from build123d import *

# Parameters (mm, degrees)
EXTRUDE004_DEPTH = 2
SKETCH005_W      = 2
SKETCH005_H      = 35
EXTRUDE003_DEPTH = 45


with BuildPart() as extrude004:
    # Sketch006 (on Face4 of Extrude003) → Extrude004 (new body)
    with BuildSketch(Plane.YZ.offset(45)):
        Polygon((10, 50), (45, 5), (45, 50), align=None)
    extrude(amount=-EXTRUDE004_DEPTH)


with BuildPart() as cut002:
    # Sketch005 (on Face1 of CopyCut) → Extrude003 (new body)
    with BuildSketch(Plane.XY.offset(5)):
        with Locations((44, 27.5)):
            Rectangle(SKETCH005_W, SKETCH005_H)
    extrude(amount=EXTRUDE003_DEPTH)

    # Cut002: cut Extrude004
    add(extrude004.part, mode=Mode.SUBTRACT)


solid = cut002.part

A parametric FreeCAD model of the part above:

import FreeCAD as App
import Part
import Sketcher
from FreeCAD import Vector
Q = App.Units.Quantity

doc = App.newDocument("Part")
params = doc.addObject("Spreadsheet::Sheet", "Params")
for row, (alias, value) in enumerate([
    ("sketch1_width", "35 mm"),
    ("sketch1_height", "45 mm"),
    ("pad1_length", "2 mm"),
    ("sketch2_width", "2 mm"),
    ("sketch2_height", "35 mm"),
    ("pad2_length", "45 mm"),
], start=1):
    params.set(f"A{row}", alias)
    params.set(f"B{row}", "=" + value)
    params.setAlias(f"B{row}", alias)

body = doc.addObject("PartDesign::Body", "Body")

# Sketch on YZ plane
sketch1 = body.newObject("Sketcher::SketchObject", "Sketch")
sketch1.AttachmentSupport = (doc.getObject("YZ_Plane"), [""])
sketch1.MapMode = "FlatFace"
sketch1.AttachmentOffset = App.Placement(Vector(0, 0, 45), App.Rotation())
sketch1.addGeometry([
    Part.LineSegment(Vector(10, 50, 0), Vector(45, 5, 0)),
    Part.LineSegment(Vector(45, 5, 0), Vector(45, 50, 0)),
    Part.LineSegment(Vector(45, 50, 0), Vector(10, 50, 0)),
], False)
sketch1.addConstraint([
    Sketcher.Constraint("Coincident", 0, 2, 1, 1),
    Sketcher.Constraint("Coincident", 1, 2, 2, 1),
    Sketcher.Constraint("Coincident", 2, 2, 0, 1),
    Sketcher.Constraint("Vertical", 1),
    Sketcher.Constraint("Horizontal", 2),
    Sketcher.Constraint("DistanceX", 2, 2, 2, 1, Q("35 mm")),
    Sketcher.Constraint("DistanceY", 1, 1, 1, 2, Q("45 mm")),
    Sketcher.Constraint("DistanceX", -1, 1, 0, 2, Q("45 mm")),
    Sketcher.Constraint("DistanceY", -1, 1, 0, 2, Q("5 mm")),
])
sketch1.setExpression("Constraints[5]", "Params.sketch1_width")
sketch1.setExpression("Constraints[6]", "Params.sketch1_height")
pad1 = body.newObject("PartDesign::Pad", "Pad")
pad1.Profile = sketch1
pad1.setExpression("Length", "Params.pad1_length")
pad1.Reversed = True
body2 = doc.addObject("PartDesign::Body", "Body001")

# Sketch on XY plane
sketch2 = body2.newObject("Sketcher::SketchObject", "Sketch001")
sketch2.AttachmentSupport = (doc.getObject("XY_Plane001"), [""])
sketch2.MapMode = "FlatFace"
sketch2.AttachmentOffset = App.Placement(Vector(0, 0, 5), App.Rotation())
sketch2.addGeometry([
    Part.LineSegment(Vector(43, 45, 0), Vector(43, 10, 0)),
    Part.LineSegment(Vector(43, 10, 0), Vector(45, 10, 0)),
    Part.LineSegment(Vector(45, 10, 0), Vector(45, 45, 0)),
    Part.LineSegment(Vector(45, 45, 0), Vector(43, 45, 0)),
], False)
sketch2.addConstraint([
    Sketcher.Constraint("Coincident", 0, 2, 1, 1),
    Sketcher.Constraint("Coincident", 1, 2, 2, 1),
    Sketcher.Constraint("Coincident", 2, 2, 3, 1),
    Sketcher.Constraint("Coincident", 3, 2, 0, 1),
    Sketcher.Constraint("Vertical", 0),
    Sketcher.Constraint("Horizontal", 1),
    Sketcher.Constraint("Vertical", 2),
    Sketcher.Constraint("Horizontal", 3),
    Sketcher.Constraint("DistanceX", 1, 1, 1, 2, Q("2 mm")),
    Sketcher.Constraint("DistanceY", 0, 2, 0, 1, Q("35 mm")),
    Sketcher.Constraint("DistanceX", -1, 1, 0, 2, Q("43 mm")),
    Sketcher.Constraint("DistanceY", -1, 1, 0, 2, Q("10 mm")),
])
sketch2.setExpression("Constraints[8]", "Params.sketch2_width")
sketch2.setExpression("Constraints[9]", "Params.sketch2_height")
pad2 = body2.newObject("PartDesign::Pad", "Pad001")
pad2.Profile = sketch2
pad2.setExpression("Length", "Params.pad2_length")
doc.recompute()

boolean = body2.newObject("PartDesign::Boolean", "Boolean")
boolean.Type = "Cut"
boolean.addObjects([body])

doc.recompute()
